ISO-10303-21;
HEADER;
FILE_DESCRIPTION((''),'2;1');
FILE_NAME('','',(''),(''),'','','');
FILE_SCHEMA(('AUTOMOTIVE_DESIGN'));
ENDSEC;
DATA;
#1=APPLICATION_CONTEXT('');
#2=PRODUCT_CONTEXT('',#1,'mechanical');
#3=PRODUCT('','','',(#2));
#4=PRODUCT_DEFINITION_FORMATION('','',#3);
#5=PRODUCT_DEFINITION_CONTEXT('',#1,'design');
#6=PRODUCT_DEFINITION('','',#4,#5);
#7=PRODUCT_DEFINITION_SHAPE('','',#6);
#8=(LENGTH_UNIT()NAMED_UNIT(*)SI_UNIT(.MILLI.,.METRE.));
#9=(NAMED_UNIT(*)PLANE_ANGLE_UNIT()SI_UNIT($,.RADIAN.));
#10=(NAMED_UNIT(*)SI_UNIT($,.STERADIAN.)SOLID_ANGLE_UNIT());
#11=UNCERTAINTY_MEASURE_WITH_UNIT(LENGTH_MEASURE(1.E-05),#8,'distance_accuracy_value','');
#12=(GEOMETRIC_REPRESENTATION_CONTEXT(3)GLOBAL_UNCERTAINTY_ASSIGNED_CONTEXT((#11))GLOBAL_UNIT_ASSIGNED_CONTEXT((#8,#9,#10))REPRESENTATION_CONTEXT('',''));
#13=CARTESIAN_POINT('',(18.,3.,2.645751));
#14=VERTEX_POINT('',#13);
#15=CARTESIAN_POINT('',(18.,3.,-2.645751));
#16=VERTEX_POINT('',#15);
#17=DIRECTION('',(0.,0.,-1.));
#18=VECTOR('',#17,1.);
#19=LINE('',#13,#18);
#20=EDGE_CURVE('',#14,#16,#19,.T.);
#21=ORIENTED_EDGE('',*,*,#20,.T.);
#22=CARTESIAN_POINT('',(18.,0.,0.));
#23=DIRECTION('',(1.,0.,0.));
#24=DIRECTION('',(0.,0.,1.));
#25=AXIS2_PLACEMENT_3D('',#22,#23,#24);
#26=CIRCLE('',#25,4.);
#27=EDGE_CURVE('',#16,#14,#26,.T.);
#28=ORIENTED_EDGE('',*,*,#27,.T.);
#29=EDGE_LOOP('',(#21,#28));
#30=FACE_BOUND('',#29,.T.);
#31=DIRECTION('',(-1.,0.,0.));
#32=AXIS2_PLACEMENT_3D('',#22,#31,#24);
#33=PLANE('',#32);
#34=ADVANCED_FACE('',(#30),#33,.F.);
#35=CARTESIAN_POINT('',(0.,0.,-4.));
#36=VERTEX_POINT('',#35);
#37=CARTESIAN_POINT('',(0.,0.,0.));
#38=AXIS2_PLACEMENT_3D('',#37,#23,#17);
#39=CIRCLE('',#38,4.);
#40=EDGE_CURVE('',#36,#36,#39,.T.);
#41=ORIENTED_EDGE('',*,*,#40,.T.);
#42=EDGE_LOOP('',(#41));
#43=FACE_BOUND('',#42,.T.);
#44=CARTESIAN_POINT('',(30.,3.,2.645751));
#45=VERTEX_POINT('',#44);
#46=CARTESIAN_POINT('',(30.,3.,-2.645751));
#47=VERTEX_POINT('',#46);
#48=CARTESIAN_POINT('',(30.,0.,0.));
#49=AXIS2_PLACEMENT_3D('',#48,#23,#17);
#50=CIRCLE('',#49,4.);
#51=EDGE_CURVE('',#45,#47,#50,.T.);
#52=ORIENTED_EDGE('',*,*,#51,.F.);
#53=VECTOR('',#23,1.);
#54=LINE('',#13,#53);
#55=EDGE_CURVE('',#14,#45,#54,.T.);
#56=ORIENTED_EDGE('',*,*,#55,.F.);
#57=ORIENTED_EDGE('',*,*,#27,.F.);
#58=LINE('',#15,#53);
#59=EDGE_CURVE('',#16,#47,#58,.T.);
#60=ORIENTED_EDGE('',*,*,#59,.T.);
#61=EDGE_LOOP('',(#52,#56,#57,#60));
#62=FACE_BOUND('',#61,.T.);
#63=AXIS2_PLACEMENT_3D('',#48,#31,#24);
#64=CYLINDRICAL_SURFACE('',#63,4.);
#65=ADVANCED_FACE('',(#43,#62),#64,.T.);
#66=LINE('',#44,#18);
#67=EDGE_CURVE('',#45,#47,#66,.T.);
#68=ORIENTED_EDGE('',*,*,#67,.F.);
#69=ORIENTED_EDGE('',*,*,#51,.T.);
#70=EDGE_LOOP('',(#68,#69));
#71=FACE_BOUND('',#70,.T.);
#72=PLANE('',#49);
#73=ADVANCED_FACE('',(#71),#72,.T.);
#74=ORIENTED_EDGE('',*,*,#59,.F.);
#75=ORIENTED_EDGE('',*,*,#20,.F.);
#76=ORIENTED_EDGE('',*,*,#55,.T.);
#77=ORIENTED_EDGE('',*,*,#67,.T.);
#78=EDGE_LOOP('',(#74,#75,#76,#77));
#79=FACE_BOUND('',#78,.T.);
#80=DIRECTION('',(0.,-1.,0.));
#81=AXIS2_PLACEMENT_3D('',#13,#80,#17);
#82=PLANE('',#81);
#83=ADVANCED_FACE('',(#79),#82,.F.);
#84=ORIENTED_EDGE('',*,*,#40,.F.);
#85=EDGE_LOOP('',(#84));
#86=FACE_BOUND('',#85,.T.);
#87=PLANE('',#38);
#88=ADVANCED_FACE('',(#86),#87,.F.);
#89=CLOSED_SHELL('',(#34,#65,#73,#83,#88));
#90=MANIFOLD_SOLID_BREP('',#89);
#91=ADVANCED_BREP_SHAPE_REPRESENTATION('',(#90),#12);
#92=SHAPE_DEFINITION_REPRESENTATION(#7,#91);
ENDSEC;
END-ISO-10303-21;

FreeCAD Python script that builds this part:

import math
import FreeCAD as App
import Part
import Sketcher

V = App.Vector
Q = App.Units.Quantity

doc = App.newDocument("Part")
body = doc.addObject("PartDesign::Body", "Body")

# Sketch on YZ plane
sketch1 = doc.addObject("Sketcher::SketchObject", "Sketch")
body.addObject(sketch1)
sketch1.AttachmentSupport = (doc.YZ_Plane, [""])
sketch1.MapMode = "FlatFace"
sketch1.addGeometry(Part.Circle(V(0, 0, 0), V(0, 0, 1), 4), False)
sketch1.addConstraint([
    Sketcher.Constraint("Coincident", 0, 3, -1, 1),
    Sketcher.Constraint("Diameter", 0, Q("8 mm")),
])
pad1 = doc.addObject("PartDesign::Pad", "Pad")
body.addObject(pad1)
pad1.Profile = sketch1
pad1.Length = 30

# Sketch on YZ plane
sketch2 = doc.addObject("Sketcher::SketchObject", "Sketch001")
body.addObject(sketch2)
sketch2.AttachmentSupport = (doc.YZ_Plane, [""])
sketch2.MapMode = "FlatFace"
sketch2.AttachmentOffset = App.Placement(V(0, 0, 18), App.Rotation())
sketch2.addGeometry([
    Part.LineSegment(V(3, 2.6, 0), V(3, -2.6, 0)),
    Part.ArcOfCircle(Part.Circle(V(0, 0, 0), V(0, 0, 1), 4), math.radians(-41), math.radians(41)),
], False)
sketch2.addConstraint([
    Sketcher.Constraint("Coincident", 0, 1, 1, 2),
    Sketcher.Constraint("Coincident", 1, 1, 0, 2),
    Sketcher.Constraint("Vertical", 0),
    Sketcher.Constraint("Coincident", 1, 3, -1, 1),
    Sketcher.Constraint("Radius", 1, Q("4 mm")),
    Sketcher.Constraint("DistanceX", -1, 1, 0, 1, Q("3 mm")),
])
pocket1 = doc.addObject("PartDesign::Pocket", "Pocket")
body.addObject(pocket1)
pocket1.Profile = sketch2
pocket1.Length = 12
pocket1.Reversed = True

doc.recompute()
